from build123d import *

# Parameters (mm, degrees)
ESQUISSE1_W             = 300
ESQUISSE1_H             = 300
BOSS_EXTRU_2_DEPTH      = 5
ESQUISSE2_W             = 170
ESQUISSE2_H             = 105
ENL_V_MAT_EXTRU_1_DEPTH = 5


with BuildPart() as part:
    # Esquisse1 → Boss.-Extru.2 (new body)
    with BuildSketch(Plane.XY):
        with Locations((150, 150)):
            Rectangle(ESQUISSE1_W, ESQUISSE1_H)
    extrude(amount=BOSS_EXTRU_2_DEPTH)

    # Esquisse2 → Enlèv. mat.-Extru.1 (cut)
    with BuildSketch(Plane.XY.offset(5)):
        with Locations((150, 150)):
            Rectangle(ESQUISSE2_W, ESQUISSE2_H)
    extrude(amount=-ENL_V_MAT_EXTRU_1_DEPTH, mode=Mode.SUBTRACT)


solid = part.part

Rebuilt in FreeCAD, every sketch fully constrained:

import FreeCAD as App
import Part
import Sketcher
Q = App.Units.Quantity


def add_polygon(sketch, points):
    """Adds a closed chain of lines whose ends are joined by coincident constraints."""
    first, n = sketch.GeometryCount, len(points)
    for a, b in zip(points, points[1:] + points[:1]):
        sketch.addGeometry(Part.LineSegment(App.Vector(*a, 0), App.Vector(*b, 0)), False)
    for i in range(n):
        sketch.addConstraint(Sketcher.Constraint("Coincident", first + i, 2, first + (i + 1) % n, 1))

doc = App.newDocument("Part")
body = doc.addObject("PartDesign::Body", "Body")

sketch1 = body.newObject("Sketcher::SketchObject", "Sketch")
sketch1.AttachmentSupport = (doc.getObject("XY_Plane"), [""])
sketch1.MapMode = "FlatFace"
add_polygon(sketch1, [(0, 300), (0, 0), (300, 0), (300, 300)])
sketch1.addConstraint([
    Sketcher.Constraint("Vertical", 0),
    Sketcher.Constraint("Horizontal", 1),
    Sketcher.Constraint("Vertical", 2),
    Sketcher.Constraint("Horizontal", 3),
    Sketcher.Constraint("Coincident", 0, 2, -1, 1),
    Sketcher.Constraint("Equal", 3, 0),
    Sketcher.Constraint("DistanceX", 1, 1, 1, 2, Q("300 mm")),
])
pad1 = body.newObject("PartDesign::Pad", "Pad")
pad1.Profile = sketch1
pad1.Length = 5

sketch2 = body.newObject("Sketcher::SketchObject", "Sketch001")
sketch2.AttachmentSupport = (doc.getObject("XY_Plane"), [""])
sketch2.MapMode = "FlatFace"
sketch2.AttachmentOffset = App.Placement(App.Vector(0, 0, 5), App.Rotation())
add_polygon(sketch2, [(65, 202), (65, 98), (235, 98), (235, 202)])
sketch2.addConstraint([
    Sketcher.Constraint("Vertical", 0),
    Sketcher.Constraint("Horizontal", 1),
    Sketcher.Constraint("Vertical", 2),
    Sketcher.Constraint("Horizontal", 3),
    Sketcher.Constraint("DistanceX", 1, 1, 1, 2, Q("170 mm")),
    Sketcher.Constraint("DistanceY", 0, 2, 0, 1, Q("105 mm")),
    Sketcher.Constraint("DistanceX", -1, 1, 0, 2, Q("65 mm")),
    Sketcher.Constraint("DistanceY", -1, 1, 0, 2, Q("97.5 mm")),
])
pocket1 = body.newObject("PartDesign::Pocket", "Pocket")
pocket1.Profile = sketch2
pocket1.Length = 5

doc.recompute()
